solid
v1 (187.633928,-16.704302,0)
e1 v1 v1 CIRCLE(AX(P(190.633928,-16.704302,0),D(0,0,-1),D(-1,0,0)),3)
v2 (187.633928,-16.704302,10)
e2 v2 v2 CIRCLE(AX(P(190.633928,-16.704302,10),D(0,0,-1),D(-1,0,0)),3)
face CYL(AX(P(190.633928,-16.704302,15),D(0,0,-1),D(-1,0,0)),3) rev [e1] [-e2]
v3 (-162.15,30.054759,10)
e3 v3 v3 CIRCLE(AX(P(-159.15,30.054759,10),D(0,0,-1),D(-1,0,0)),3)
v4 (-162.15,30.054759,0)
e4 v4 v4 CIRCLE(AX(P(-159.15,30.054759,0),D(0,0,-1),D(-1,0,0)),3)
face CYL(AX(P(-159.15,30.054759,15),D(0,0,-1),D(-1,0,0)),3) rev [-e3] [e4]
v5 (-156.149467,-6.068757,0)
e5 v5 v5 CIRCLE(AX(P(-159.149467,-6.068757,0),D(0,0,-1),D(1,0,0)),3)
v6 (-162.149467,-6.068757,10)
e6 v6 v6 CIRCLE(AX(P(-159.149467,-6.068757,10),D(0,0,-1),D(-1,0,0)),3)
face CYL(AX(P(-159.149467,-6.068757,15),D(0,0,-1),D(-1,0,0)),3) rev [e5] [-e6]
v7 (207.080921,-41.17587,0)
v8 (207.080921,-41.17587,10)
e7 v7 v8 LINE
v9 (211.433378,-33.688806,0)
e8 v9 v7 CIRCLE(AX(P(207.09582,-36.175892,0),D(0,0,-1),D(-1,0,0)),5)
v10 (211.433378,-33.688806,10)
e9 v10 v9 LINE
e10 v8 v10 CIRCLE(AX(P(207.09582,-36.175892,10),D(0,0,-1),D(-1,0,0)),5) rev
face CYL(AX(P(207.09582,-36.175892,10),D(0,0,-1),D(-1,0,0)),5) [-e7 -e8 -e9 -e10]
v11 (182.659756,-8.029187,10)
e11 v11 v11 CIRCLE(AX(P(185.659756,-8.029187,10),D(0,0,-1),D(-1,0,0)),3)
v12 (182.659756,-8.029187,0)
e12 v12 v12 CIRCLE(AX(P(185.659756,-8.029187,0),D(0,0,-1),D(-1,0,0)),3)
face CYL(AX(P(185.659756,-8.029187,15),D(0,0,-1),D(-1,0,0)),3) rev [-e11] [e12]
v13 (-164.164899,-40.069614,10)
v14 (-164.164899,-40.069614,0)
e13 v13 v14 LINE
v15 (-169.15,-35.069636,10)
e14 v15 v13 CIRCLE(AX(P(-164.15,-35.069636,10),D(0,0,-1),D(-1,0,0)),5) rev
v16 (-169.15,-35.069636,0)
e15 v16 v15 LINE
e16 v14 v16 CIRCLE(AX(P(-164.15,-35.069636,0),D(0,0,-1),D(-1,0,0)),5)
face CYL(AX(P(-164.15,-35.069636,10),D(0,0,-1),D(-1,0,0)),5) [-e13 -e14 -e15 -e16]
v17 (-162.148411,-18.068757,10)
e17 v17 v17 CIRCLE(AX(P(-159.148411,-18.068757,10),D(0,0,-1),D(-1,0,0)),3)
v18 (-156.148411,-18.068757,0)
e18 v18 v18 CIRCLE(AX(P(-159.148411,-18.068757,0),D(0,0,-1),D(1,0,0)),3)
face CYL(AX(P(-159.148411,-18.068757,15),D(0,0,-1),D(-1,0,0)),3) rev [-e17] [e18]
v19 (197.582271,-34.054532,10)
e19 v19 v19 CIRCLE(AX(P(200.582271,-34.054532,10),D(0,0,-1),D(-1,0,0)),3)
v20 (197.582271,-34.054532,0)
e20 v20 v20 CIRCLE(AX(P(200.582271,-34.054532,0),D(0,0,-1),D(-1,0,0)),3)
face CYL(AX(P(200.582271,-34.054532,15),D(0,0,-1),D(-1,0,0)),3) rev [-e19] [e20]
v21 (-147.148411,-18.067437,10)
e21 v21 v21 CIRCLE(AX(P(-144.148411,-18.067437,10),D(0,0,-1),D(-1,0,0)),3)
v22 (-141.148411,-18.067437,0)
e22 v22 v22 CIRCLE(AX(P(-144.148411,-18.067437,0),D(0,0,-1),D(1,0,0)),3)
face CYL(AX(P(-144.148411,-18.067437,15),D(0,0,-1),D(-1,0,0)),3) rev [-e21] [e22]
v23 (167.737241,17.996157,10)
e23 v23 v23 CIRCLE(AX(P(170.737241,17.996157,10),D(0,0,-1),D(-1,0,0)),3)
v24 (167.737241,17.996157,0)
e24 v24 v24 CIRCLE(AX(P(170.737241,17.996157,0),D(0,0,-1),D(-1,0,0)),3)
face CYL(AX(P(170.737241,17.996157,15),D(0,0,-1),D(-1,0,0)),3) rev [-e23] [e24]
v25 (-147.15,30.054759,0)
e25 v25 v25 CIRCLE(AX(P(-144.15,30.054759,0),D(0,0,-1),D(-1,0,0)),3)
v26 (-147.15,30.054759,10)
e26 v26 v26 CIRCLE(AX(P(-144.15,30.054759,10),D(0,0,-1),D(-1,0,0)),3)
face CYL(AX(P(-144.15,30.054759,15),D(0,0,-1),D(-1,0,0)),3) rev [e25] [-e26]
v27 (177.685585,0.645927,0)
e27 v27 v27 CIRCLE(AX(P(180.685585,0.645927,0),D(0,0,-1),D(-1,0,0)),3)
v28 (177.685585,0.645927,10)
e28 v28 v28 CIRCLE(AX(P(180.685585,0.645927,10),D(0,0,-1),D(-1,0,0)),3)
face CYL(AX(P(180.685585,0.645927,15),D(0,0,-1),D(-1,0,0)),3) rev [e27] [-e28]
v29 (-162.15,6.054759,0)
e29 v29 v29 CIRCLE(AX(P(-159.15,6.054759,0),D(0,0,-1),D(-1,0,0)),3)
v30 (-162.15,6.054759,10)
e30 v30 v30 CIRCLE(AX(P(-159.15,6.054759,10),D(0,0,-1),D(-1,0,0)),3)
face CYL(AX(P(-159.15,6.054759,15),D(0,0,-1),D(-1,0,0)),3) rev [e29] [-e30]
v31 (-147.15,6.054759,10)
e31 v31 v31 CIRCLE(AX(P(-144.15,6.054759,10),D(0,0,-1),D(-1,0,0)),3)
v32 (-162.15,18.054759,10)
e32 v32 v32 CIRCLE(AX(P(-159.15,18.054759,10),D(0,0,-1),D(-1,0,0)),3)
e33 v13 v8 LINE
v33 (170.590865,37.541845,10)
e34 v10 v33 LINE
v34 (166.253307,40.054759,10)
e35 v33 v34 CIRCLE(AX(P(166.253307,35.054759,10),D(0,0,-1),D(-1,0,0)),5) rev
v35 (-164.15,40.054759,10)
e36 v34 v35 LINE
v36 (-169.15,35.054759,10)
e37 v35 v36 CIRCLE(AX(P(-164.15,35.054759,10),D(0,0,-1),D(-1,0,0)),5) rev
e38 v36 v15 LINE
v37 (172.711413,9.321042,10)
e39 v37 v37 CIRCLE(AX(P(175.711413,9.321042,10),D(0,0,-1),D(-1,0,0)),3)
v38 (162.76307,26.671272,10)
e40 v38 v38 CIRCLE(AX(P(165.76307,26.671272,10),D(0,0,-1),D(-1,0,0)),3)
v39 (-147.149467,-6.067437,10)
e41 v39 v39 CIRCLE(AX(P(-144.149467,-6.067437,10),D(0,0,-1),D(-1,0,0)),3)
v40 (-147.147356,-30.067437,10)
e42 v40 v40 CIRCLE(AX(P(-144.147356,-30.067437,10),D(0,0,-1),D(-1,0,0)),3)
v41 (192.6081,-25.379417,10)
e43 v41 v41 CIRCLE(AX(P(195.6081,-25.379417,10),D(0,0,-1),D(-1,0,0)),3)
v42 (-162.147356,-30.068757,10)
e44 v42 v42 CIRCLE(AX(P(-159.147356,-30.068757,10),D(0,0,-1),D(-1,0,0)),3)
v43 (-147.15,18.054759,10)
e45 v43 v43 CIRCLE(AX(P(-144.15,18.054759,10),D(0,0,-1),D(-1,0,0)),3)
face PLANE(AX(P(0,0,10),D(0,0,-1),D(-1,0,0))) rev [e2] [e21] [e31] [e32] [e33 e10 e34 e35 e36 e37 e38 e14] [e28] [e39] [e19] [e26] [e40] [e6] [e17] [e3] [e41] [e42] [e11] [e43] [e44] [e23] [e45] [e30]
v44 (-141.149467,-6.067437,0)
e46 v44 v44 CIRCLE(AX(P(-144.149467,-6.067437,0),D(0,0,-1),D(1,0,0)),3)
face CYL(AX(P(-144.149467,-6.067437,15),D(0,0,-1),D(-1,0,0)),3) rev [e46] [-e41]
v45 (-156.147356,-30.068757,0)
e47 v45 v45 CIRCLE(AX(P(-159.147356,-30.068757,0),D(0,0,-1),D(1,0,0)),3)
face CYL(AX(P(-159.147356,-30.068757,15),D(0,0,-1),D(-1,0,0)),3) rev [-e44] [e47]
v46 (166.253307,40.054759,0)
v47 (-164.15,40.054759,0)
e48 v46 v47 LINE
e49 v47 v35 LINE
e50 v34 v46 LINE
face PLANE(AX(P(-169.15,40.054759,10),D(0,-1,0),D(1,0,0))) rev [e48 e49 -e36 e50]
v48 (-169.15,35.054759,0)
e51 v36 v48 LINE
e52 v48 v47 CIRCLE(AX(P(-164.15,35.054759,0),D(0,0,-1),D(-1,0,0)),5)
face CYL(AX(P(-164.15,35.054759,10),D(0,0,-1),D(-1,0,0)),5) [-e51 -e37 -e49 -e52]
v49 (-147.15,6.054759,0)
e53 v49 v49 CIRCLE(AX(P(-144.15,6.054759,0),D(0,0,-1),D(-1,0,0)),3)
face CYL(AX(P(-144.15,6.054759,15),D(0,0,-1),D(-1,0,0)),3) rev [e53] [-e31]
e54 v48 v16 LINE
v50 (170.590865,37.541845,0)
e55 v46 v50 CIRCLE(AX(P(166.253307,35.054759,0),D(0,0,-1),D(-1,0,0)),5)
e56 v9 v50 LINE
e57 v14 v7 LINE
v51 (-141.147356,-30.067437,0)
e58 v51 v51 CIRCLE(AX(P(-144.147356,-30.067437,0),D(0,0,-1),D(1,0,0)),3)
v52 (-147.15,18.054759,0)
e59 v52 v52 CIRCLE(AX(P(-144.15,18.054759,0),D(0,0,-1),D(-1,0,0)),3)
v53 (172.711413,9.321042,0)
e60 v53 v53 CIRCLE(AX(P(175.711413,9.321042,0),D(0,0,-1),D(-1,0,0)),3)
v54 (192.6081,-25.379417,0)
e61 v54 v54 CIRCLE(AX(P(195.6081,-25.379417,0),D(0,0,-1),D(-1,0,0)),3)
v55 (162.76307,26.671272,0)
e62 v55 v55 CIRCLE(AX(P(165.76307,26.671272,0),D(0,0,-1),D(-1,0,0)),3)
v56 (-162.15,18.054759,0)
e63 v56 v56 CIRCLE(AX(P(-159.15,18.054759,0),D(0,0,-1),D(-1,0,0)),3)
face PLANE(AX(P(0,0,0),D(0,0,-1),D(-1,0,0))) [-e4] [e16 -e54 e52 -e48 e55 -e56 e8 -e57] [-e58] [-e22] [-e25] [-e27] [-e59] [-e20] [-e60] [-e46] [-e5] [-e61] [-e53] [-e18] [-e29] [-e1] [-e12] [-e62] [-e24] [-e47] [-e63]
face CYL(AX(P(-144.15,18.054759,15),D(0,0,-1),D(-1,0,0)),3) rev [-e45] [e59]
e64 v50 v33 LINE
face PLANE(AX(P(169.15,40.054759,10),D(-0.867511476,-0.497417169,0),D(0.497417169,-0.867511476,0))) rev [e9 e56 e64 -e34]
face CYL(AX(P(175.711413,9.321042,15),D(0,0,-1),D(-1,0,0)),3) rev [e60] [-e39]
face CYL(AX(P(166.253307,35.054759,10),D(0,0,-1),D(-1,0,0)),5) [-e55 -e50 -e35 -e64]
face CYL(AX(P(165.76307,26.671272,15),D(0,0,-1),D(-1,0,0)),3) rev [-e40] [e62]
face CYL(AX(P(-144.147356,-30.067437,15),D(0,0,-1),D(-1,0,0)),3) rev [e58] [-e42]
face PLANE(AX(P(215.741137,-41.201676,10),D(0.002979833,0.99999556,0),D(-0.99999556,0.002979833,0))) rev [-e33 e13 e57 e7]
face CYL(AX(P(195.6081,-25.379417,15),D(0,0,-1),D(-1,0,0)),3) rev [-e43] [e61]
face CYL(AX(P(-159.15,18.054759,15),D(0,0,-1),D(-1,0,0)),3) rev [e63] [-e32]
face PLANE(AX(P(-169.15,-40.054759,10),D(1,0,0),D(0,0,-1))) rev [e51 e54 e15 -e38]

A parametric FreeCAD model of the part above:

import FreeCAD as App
import Part
import Sketcher
Q = App.Units.Quantity


def edges_at(feature, points):
    """Names of the edges that pass closest to the given points."""
    edges = feature.Shape.Edges
    near = lambda p: min(range(len(edges)), key=lambda i: edges[i].distToShape(Part.Vertex(*p))[0])
    return sorted({f"Edge{near(p) + 1}" for p in points})


def add_polygon(sketch, points):
    """Adds a closed chain of lines whose ends are joined by coincident constraints."""
    first, n = sketch.GeometryCount, len(points)
    for a, b in zip(points, points[1:] + points[:1]):
        sketch.addGeometry(Part.LineSegment(App.Vector(*a, 0), App.Vector(*b, 0)), False)
    for i in range(n):
        sketch.addConstraint(Sketcher.Constraint("Coincident", first + i, 2, first + (i + 1) % n, 1))

doc = App.newDocument("Part")
params = doc.addObject("Spreadsheet::Sheet", "Params")
for row, (alias, value) in enumerate([
    ("sketch1_width", "338.3 mm"),
    ("pad1_length", "10 mm"),
    ("fillet_radius", "5 mm"),
    ("sketch2_diameter", "6 mm"),
    ("pocket1_length", "15 mm"),
], start=1):
    params.set(f"A{row}", alias)
    params.set(f"B{row}", "=" + value)
    params.setAlias(f"B{row}", alias)

body = doc.addObject("PartDesign::Body", "Body")

# Sketch on XY plane
sketch1 = body.newObject("Sketcher::SketchObject", "Sketch")
sketch1.AttachmentSupport = (doc.getObject("XY_Plane"), [""])
sketch1.MapMode = "FlatFace"
add_polygon(sketch1, [(169, 40), (-169, 40), (-169, -40), (216, -41)])  # lines 0-3
sketch1.addConstraint([
    Sketcher.Constraint("Horizontal", 0),
    Sketcher.Constraint("Vertical", 1),
    Sketcher.Constraint("Symmetric", 1, 2, 3, 2, -1, 1),
    Sketcher.Constraint("DistanceX", 0, 2, 0, 1, Q("338.3 mm")),
    Sketcher.Constraint("DistanceY", 1, 2, 1, 1, Q("80.109518 mm")),
    Sketcher.Constraint("Distance", 3, Q("93.666121 mm")),
    Sketcher.Constraint("Distance", 2, Q("384.892846 mm")),
])
sketch1.setExpression("Constraints[7]", "Params.sketch1_width")
pad1 = body.newObject("PartDesign::Pad", "Pad")
pad1.Profile = sketch1
pad1.setExpression("Length", "Params.pad1_length")
doc.recompute()

fillet = body.newObject("PartDesign::Fillet", "Fillet")
fillet.Base = (pad1, edges_at(pad1, [
    (-169.15, 40.055, 5),
    (169.15, 40.055, 5),
    (215.741, -41.202, 5),
    (-169.15, -40.055, 5),
]))
fillet.setExpression("Radius", "Params.fillet_radius")

# Sketch on XY plane
sketch2 = body.newObject("Sketcher::SketchObject", "Sketch001")
sketch2.AttachmentSupport = (doc.getObject("XY_Plane"), [""])
sketch2.MapMode = "FlatFace"
sketch2.addGeometry([
    Part.Circle(App.Vector(-144.2, 30.1, 0), App.Vector(0, 0, 1), 3),  # 0
    Part.Circle(App.Vector(-159.2, 30.1, 0), App.Vector(0, 0, 1), 3),  # 1
    Part.Circle(App.Vector(-159.2, 18.1, 0), App.Vector(0, 0, 1), 3),  # 2
    Part.Circle(App.Vector(-159.2, 6.1, 0), App.Vector(0, 0, 1), 3),  # 3
    Part.Circle(App.Vector(-144.2, 18.1, 0), App.Vector(0, 0, 1), 3),  # 4
    Part.Circle(App.Vector(-144.2, 6.1, 0), App.Vector(0, 0, 1), 3),  # 5
    Part.Circle(App.Vector(-144.1, -6.1, 0), App.Vector(0, 0, 1), 3),  # 6
    Part.Circle(App.Vector(-144.1, -18.1, 0), App.Vector(0, 0, 1), 3),  # 7
    Part.Circle(App.Vector(-159.1, -6.1, 0), App.Vector(0, 0, 1), 3),  # 8
    Part.Circle(App.Vector(-159.1, -18.1, 0), App.Vector(0, 0, 1), 3),  # 9
    Part.Circle(App.Vector(-159.1, -30.1, 0), App.Vector(0, 0, 1), 3),  # 10
    Part.Circle(App.Vector(-144.1, -30.1, 0), App.Vector(0, 0, 1), 3),  # 11
    Part.Circle(App.Vector(165.8, 26.7, 0), App.Vector(0, 0, 1), 3),  # 12
    Part.Circle(App.Vector(195.6, -25.4, 0), App.Vector(0, 0, 1), 3),  # 13
    Part.Circle(App.Vector(190.6, -16.7, 0), App.Vector(0, 0, 1), 3),  # 14
    Part.Circle(App.Vector(185.7, -8, 0), App.Vector(0, 0, 1), 3),  # 15
    Part.Circle(App.Vector(180.7, 0.6, 0), App.Vector(0, 0, 1), 3),  # 16
    Part.Circle(App.Vector(175.7, 9.3, 0), App.Vector(0, 0, 1), 3),  # 17
    Part.Circle(App.Vector(170.7, 18, 0), App.Vector(0, 0, 1), 3),  # 18
    Part.Circle(App.Vector(200.6, -34.1, 0), App.Vector(0, 0, 1), 3),  # 19
], False)
sketch2.addConstraint([
    Sketcher.Constraint("Equal", 0, 1),
    Sketcher.Constraint("Equal", 1, 2),
    Sketcher.Constraint("Equal", 2, 3),
    Sketcher.Constraint("Equal", 3, 4),
    Sketcher.Constraint("Equal", 4, 5),
    Sketcher.Constraint("Equal", 5, 6),
    Sketcher.Constraint("Equal", 6, 7),
    Sketcher.Constraint("Equal", 7, 8),
    Sketcher.Constraint("Equal", 8, 9),
    Sketcher.Constraint("Equal", 9, 10),
    Sketcher.Constraint("Equal", 10, 11),
    Sketcher.Constraint("Equal", 11, 12),
    Sketcher.Constraint("Equal", 12, 13),
    Sketcher.Constraint("Equal", 13, 14),
    Sketcher.Constraint("Equal", 14, 15),
    Sketcher.Constraint("Equal", 15, 16),
    Sketcher.Constraint("Equal", 16, 17),
    Sketcher.Constraint("Equal", 17, 18),
    Sketcher.Constraint("Equal", 18, 19),
    Sketcher.Constraint("Horizontal", 0, 3, 1, 3),
    Sketcher.Constraint("Horizontal", 2, 3, 4, 3),
    Sketcher.Constraint("Horizontal", 3, 3, 5, 3),
    Sketcher.Constraint("Vertical", 1, 3, 2, 3),
    Sketcher.Constraint("Vertical", 2, 3, 3, 3),
    Sketcher.Constraint("Vertical", 0, 3, 4, 3),
    Sketcher.Constraint("Vertical", 4, 3, 5, 3),
    Sketcher.Constraint("Diameter", 0, Q("6 mm")),
    Sketcher.Constraint("DistanceX", 1, 3, 0, 3, Q("15 mm")),
    Sketcher.Constraint("DistanceY", 2, 3, 1, 3, Q("12 mm")),
    Sketcher.Constraint("DistanceY", 3, 3, 2, 3, Q("12 mm")),
    Sketcher.Constraint("DistanceY", 7, 3, 6, 3, Q("12 mm")),
    Sketcher.Constraint("DistanceX", 8, 3, 6, 3, Q("15 mm")),
    Sketcher.Constraint("DistanceY", 9, 3, 8, 3, Q("12 mm")),
    Sketcher.Constraint("DistanceX", 9, 3, 7, 3, Q("15 mm")),
    Sketcher.Constraint("DistanceY", 10, 3, 9, 3, Q("12 mm")),
    Sketcher.Constraint("DistanceY", 11, 3, 7, 3, Q("12 mm")),
    Sketcher.Constraint("DistanceX", 10, 3, 11, 3, Q("15 mm")),
    Sketcher.Constraint("DistanceX", 0, 3, -1, 1, Q("144.15 mm")),
    Sketcher.Constraint("DistanceX", -1, 1, 13, 3, Q("195.6081 mm")),
    Sketcher.Constraint("DistanceY", -1, 1, 0, 3, Q("30.054759 mm")),
    Sketcher.Constraint("DistanceX", 7, 3, -1, 1, Q("144.148411 mm")),
    Sketcher.Constraint("DistanceX", -1, 1, 12, 3, Q("165.76307 mm")),
    Sketcher.Constraint("DistanceY", -1, 1, 12, 3, Q("26.671272 mm")),
    Sketcher.Constraint("DistanceX", -1, 1, 18, 3, Q("170.737241 mm")),
    Sketcher.Constraint("DistanceX", -1, 1, 19, 3, Q("200.582271 mm")),
    Sketcher.Constraint("DistanceY", 19, 3, -1, 1, Q("34.054532 mm")),
    Sketcher.Constraint("DistanceY", 8, 3, 6, 3, Q("0.001319 mm")),
    Sketcher.Constraint("DistanceX", 8, 3, 10, 3, Q("0.002111 mm")),
    Sketcher.Constraint("DistanceY", 6, 3, 12, 3, Q("32.738709 mm")),
    Sketcher.Constraint("DistanceY", 13, 3, 12, 3, Q("52.050689 mm")),
    Sketcher.Constraint("DistanceX", 14, 3, 13, 3, Q("4.974172 mm")),
    Sketcher.Constraint("DistanceX", 15, 3, 14, 3, Q("4.974172 mm")),
    Sketcher.Constraint("DistanceY", 13, 3, 15, 3, Q("17.35023 mm")),
    Sketcher.Constraint("DistanceX", 16, 3, 15, 3, Q("4.974172 mm")),
    Sketcher.Constraint("DistanceY", 14, 3, 16, 3, Q("17.35023 mm")),
    Sketcher.Constraint("DistanceY", 16, 3, 5, 3, Q("5.408832 mm")),
    Sketcher.Constraint("DistanceX", 17, 3, 16, 3, Q("4.974172 mm")),
    Sketcher.Constraint("DistanceY", 15, 3, 17, 3, Q("17.35023 mm")),
    Sketcher.Constraint("DistanceY", 16, 3, 18, 3, Q("17.35023 mm")),
    Sketcher.Constraint("DistanceX", 6, 3, -1, 1, Q("144.149467 mm")),
])
sketch2.setExpression("Constraints[26]", "Params.sketch2_diameter")
pocket1 = body.newObject("PartDesign::Pocket", "Pocket")
pocket1.Profile = sketch2
pocket1.setExpression("Length", "Params.pocket1_length")
pocket1.Reversed = True

doc.recompute()
